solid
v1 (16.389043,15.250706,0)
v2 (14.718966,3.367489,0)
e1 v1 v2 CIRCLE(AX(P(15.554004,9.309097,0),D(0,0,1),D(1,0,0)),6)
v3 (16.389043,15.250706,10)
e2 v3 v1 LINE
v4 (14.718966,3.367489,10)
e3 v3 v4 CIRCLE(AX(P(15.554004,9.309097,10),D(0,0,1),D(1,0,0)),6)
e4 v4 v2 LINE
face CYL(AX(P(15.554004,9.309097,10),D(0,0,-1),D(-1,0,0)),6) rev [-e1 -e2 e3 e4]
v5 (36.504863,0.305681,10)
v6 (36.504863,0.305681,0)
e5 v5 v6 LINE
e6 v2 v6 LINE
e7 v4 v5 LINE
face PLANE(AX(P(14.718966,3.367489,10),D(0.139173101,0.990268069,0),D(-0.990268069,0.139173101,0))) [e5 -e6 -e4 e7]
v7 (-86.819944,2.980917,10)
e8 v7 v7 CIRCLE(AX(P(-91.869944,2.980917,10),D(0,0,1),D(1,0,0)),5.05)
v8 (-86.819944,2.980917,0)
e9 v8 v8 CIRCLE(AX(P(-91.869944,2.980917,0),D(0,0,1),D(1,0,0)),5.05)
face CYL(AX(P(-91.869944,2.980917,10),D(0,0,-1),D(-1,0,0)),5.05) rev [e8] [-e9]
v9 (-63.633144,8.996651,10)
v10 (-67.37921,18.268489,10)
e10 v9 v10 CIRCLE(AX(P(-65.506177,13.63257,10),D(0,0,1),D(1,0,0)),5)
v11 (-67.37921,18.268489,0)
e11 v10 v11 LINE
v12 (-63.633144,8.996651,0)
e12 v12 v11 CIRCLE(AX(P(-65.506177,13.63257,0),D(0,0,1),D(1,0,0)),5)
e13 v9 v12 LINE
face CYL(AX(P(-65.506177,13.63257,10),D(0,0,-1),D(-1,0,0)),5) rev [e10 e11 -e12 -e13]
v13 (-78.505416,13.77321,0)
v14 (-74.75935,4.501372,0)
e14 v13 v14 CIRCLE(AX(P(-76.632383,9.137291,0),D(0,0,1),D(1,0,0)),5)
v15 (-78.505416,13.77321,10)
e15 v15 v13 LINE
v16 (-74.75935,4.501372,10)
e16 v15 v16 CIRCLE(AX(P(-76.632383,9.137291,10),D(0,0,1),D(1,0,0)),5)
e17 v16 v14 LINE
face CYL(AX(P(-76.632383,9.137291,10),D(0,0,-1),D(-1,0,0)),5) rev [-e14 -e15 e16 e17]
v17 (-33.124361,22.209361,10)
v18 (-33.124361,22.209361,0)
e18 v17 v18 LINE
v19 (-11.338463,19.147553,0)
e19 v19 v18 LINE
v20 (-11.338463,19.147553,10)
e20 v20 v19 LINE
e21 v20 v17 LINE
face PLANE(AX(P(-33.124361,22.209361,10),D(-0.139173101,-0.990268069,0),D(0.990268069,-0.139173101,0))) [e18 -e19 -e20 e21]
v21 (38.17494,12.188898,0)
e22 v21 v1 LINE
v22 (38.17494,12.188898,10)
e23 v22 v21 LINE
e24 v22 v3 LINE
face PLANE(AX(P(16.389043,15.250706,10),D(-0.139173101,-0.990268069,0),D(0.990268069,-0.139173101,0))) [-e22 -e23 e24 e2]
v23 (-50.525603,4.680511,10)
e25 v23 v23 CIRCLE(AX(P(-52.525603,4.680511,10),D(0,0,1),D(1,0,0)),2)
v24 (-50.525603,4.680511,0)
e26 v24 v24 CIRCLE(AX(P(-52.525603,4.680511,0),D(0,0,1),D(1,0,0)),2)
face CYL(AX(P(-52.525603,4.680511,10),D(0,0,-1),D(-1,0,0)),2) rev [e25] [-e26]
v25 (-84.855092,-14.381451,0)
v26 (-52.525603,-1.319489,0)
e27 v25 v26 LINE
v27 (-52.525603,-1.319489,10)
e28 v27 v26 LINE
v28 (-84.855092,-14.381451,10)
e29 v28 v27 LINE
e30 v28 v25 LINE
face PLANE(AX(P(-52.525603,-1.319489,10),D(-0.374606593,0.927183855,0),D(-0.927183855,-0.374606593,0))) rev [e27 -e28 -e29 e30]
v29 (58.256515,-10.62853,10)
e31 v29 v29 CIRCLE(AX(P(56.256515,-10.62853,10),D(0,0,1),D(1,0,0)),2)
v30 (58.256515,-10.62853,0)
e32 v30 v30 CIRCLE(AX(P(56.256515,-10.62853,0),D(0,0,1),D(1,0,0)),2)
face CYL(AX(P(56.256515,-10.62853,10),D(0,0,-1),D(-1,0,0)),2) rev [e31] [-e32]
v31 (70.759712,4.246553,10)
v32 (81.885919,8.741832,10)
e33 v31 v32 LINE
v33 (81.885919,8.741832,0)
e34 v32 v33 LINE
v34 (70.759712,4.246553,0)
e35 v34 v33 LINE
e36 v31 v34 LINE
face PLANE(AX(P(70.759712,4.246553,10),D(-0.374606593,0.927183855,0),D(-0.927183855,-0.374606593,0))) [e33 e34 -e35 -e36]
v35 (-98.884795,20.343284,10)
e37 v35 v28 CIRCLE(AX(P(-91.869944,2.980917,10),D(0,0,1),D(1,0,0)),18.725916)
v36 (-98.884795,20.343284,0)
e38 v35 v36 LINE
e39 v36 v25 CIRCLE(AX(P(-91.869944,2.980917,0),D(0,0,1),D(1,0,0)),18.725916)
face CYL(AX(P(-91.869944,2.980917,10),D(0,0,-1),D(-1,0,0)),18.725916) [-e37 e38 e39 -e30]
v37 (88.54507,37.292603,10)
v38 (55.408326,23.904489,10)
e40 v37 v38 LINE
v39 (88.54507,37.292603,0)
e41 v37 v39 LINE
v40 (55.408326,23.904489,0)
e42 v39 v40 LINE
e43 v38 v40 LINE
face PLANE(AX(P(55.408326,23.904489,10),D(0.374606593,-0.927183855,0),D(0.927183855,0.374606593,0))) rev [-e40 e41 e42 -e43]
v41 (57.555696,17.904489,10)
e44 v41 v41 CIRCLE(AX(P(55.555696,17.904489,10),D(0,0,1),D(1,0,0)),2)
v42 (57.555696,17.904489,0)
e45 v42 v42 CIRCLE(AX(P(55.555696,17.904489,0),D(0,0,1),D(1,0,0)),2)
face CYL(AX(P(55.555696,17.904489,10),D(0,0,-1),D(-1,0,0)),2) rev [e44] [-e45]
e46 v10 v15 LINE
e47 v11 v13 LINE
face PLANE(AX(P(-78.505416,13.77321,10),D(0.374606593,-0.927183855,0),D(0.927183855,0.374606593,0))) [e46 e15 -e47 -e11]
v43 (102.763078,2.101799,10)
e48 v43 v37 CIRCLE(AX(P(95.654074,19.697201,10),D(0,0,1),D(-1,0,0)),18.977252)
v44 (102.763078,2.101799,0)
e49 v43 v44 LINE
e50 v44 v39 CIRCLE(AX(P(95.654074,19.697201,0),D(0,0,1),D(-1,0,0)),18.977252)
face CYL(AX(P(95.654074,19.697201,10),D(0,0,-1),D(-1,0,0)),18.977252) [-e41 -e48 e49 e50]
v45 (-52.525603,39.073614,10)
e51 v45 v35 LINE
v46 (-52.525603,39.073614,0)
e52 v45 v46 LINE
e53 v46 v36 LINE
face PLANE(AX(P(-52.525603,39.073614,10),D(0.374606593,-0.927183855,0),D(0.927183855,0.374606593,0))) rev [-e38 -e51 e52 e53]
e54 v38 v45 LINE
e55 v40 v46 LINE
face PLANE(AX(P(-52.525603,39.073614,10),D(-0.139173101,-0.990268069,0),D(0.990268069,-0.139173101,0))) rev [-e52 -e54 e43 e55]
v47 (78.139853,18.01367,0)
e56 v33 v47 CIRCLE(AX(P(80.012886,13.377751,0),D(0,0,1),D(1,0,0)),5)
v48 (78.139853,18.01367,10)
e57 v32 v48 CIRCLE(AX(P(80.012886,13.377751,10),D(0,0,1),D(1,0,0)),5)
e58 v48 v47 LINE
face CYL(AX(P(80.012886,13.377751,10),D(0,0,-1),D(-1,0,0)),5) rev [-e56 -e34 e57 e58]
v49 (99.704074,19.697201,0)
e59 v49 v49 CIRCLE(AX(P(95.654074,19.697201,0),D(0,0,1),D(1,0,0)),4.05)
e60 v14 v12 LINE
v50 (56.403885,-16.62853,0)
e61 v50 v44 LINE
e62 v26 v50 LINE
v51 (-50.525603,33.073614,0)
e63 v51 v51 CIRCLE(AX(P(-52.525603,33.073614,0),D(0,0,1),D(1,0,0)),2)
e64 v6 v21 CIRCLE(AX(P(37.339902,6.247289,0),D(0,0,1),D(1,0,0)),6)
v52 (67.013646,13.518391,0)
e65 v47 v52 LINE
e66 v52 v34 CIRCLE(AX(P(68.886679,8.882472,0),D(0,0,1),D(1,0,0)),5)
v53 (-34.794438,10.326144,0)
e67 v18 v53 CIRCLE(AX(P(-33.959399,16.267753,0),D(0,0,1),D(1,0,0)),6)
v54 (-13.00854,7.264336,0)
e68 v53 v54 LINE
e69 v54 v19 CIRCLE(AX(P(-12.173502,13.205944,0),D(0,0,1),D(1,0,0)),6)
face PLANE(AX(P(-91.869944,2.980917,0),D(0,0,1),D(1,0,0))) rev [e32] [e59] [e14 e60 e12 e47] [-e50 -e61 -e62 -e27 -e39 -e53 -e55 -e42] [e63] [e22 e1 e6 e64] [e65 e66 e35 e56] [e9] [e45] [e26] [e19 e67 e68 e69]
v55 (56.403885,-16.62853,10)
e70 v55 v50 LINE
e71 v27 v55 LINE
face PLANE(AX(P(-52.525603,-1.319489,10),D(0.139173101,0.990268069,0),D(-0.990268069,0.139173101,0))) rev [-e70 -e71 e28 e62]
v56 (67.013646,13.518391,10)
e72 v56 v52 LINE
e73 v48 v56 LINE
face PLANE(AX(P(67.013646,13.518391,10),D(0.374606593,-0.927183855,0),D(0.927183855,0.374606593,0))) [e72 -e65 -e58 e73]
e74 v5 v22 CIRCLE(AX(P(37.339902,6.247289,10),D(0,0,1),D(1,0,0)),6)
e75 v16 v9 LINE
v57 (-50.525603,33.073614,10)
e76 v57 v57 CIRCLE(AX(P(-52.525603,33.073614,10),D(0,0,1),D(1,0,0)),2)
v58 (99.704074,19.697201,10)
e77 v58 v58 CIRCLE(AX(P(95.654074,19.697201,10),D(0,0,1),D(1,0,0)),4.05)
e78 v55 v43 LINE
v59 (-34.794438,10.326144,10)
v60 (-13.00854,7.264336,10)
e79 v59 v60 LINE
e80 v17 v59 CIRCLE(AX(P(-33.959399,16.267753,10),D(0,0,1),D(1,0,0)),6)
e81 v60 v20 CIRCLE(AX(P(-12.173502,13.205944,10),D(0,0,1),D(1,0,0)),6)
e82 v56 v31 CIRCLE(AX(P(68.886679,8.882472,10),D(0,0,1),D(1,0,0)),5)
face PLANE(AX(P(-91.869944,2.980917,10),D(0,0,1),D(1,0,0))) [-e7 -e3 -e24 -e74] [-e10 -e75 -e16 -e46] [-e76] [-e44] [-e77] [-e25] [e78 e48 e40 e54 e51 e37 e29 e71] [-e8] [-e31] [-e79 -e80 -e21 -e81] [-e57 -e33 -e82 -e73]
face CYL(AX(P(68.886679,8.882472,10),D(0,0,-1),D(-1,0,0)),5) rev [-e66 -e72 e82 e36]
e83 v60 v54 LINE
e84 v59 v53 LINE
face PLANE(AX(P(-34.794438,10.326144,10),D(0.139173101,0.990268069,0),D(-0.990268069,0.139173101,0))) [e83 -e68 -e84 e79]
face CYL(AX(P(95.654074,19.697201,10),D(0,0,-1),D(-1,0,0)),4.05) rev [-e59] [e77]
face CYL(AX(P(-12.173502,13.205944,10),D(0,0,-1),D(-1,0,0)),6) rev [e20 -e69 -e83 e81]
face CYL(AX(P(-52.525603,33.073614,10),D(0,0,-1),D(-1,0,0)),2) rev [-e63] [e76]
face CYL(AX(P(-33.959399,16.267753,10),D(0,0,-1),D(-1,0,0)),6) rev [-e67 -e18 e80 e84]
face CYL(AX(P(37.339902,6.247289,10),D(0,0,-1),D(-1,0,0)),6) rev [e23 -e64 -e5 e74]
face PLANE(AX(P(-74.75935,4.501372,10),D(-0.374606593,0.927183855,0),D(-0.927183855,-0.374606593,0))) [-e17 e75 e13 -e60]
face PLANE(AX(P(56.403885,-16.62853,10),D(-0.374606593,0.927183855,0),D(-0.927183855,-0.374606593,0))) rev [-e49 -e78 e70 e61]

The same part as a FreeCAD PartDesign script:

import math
import FreeCAD as App
import Part
import Sketcher
from FreeCAD import Vector
Q = App.Units.Quantity

doc = App.newDocument("Part")
body = doc.addObject("PartDesign::Body", "Body")

sketch1 = body.newObject("Sketcher::SketchObject", "Sketch")
sketch1.AttachmentSupport = (doc.getObject("XY_Plane"), [""])
sketch1.MapMode = "FlatFace"
sketch1.addGeometry([
    Part.LineSegment(Vector(55.4, 23.9, 0), Vector(-52.5, 39.1, 0)),
    Part.LineSegment(Vector(-52.5, 39.1, 0), Vector(-98.9, 20.3, 0)),
    Part.ArcOfCircle(Part.Circle(Vector(-91.9, 3, 0), Vector(0, 0, 1), 18.7), math.radians(112), math.radians(292)),
    Part.LineSegment(Vector(-84.9, -14.4, 0), Vector(-52.5, -1.3, 0)),
    Part.LineSegment(Vector(-52.5, -1.3, 0), Vector(56.4, -16.6, 0)),
    Part.LineSegment(Vector(56.4, -16.6, 0), Vector(102.8, 2.1, 0)),
    Part.ArcOfCircle(Part.Circle(Vector(95.7, 19.7, 0), Vector(0, 0, 1), 19), math.radians(-68), math.radians(112)),
    Part.LineSegment(Vector(88.5, 37.3, 0), Vector(55.4, 23.9, 0)),
    Part.Circle(Vector(56.3, -10.6, 0), Vector(0, 0, 1), 2),
    Part.LineSegment(Vector(67, 13.5, 0), Vector(78.1, 18, 0)),
    Part.ArcOfCircle(Part.Circle(Vector(80, 13.4, 0), Vector(0, 0, 1), 5), math.radians(-68), math.radians(112)),
    Part.LineSegment(Vector(81.9, 8.7, 0), Vector(70.8, 4.2, 0)),
    Part.ArcOfCircle(Part.Circle(Vector(68.9, 8.9, 0), Vector(0, 0, 1), 5), math.radians(112), math.radians(292)),
    Part.LineSegment(Vector(16.4, 15.3, 0), Vector(38.2, 12.2, 0)),
    Part.ArcOfCircle(Part.Circle(Vector(37.3, 6.2, 0), Vector(0, 0, 1), 6), math.radians(-98), math.radians(82)),
    Part.LineSegment(Vector(36.5, 0.3, 0), Vector(14.7, 3.4, 0)),
    Part.ArcOfCircle(Part.Circle(Vector(15.6, 9.3, 0), Vector(0, 0, 1), 6), math.radians(82), math.radians(262)),
    Part.Circle(Vector(-52.5, 4.7, 0), Vector(0, 0, 1), 2),
    Part.Circle(Vector(-91.9, 3, 0), Vector(0, 0, 1), 5),
    Part.Circle(Vector(95.7, 19.7, 0), Vector(0, 0, 1), 4),
    Part.Circle(Vector(55.6, 17.9, 0), Vector(0, 0, 1), 2),
    Part.LineSegment(Vector(-33.1, 22.2, 0), Vector(-11.3, 19.1, 0)),
    Part.ArcOfCircle(Part.Circle(Vector(-12.2, 13.2, 0), Vector(0, 0, 1), 6), math.radians(-98), math.radians(82)),
    Part.LineSegment(Vector(-13, 7.3, 0), Vector(-34.8, 10.3, 0)),
    Part.ArcOfCircle(Part.Circle(Vector(-34, 16.3, 0), Vector(0, 0, 1), 6), math.radians(82), math.radians(262)),
    Part.LineSegment(Vector(-78.5, 13.8, 0), Vector(-67.4, 18.3, 0)),
    Part.ArcOfCircle(Part.Circle(Vector(-65.5, 13.6, 0), Vector(0, 0, 1), 5), math.radians(-68), math.radians(112)),
    Part.LineSegment(Vector(-63.6, 9, 0), Vector(-74.8, 4.5, 0)),
    Part.ArcOfCircle(Part.Circle(Vector(-76.6, 9.1, 0), Vector(0, 0, 1), 5), math.radians(112), math.radians(292)),
    Part.Circle(Vector(-52.5, 33.1, 0), Vector(0, 0, 1), 2),
], False)
sketch1.addConstraint([
    Sketcher.Constraint("Coincident", 0, 2, 1, 1),
    Sketcher.Constraint("Tangent", 1, 2, 2, 1),
    Sketcher.Constraint("Tangent", 2, 2, 3, 1),
    Sketcher.Constraint("Coincident", 3, 2, 4, 1),
    Sketcher.Constraint("Coincident", 4, 2, 5, 1),
    Sketcher.Constraint("Tangent", 5, 2, 6, 1),
    Sketcher.Constraint("Tangent", 6, 2, 7, 1),
    Sketcher.Constraint("Coincident", 7, 2, 0, 1),
    Sketcher.Constraint("Tangent", 9, 2, 10, 2),
    Sketcher.Constraint("Tangent", 10, 1, 11, 1),
    Sketcher.Constraint("Tangent", 11, 2, 12, 2),
    Sketcher.Constraint("Tangent", 12, 1, 9, 1),
    Sketcher.Constraint("Tangent", 13, 2, 14, 2),
    Sketcher.Constraint("Tangent", 14, 1, 15, 1),
    Sketcher.Constraint("Tangent", 15, 2, 16, 2),
    Sketcher.Constraint("Tangent", 16, 1, 13, 1),
    Sketcher.Constraint("Tangent", 21, 2, 22, 2),
    Sketcher.Constraint("Tangent", 22, 1, 23, 1),
    Sketcher.Constraint("Tangent", 23, 2, 24, 2),
    Sketcher.Constraint("Tangent", 24, 1, 21, 1),
    Sketcher.Constraint("Tangent", 25, 2, 26, 2),
    Sketcher.Constraint("Tangent", 26, 1, 27, 1),
    Sketcher.Constraint("Tangent", 27, 2, 28, 2),
    Sketcher.Constraint("Tangent", 28, 1, 25, 1),
    Sketcher.Constraint("Coincident", 18, 3, 2, 3),
    Sketcher.Constraint("Coincident", 19, 3, 6, 3),
    Sketcher.Constraint("Equal", 10, 12),
    Sketcher.Constraint("Equal", 14, 16),
    Sketcher.Constraint("Equal", 8, 17),
    Sketcher.Constraint("Equal", 17, 20),
    Sketcher.Constraint("Equal", 16, 22),
    Sketcher.Constraint("Equal", 22, 24),
    Sketcher.Constraint("Equal", 12, 26),
    Sketcher.Constraint("Equal", 26, 28),
    Sketcher.Constraint("Equal", 20, 29),
    Sketcher.Constraint("Parallel", 1, 3),
    Sketcher.Constraint("Parallel", 0, 4),
    Sketcher.Constraint("Parallel", 3, 5),
    Sketcher.Constraint("Parallel", 5, 7),
    Sketcher.Constraint("Parallel", 7, 9),
    Sketcher.Constraint("Parallel", 4, 13),
    Sketcher.Constraint("Parallel", 15, 21),
    Sketcher.Constraint("Parallel", 11, 25),
    Sketcher.Constraint("Vertical", 17, 3, 29, 3),
    Sketcher.Constraint("Vertical", 29, 3, 0, 2),
    Sketcher.Constraint("Vertical", 0, 2, 3, 2),
    Sketcher.Constraint("Equal", 1, 5),
    Sketcher.Constraint("Equal", 15, 21),
    Sketcher.Constraint("Equal", 11, 25),
    Sketcher.Constraint("Diameter", 8, Q("4 mm")),
    Sketcher.Constraint("Radius", 10, Q("5 mm")),
    Sketcher.Constraint("Radius", 14, Q("6 mm")),
    Sketcher.Constraint("Diameter", 18, Q("10.1 mm")),
    Sketcher.Constraint("Diameter", 19, Q("8.1 mm")),
    Sketcher.Constraint("Angle", 0, Q("172 deg")),
    Sketcher.Constraint("Angle", 1, Q("-158 deg")),
    Sketcher.Constraint("Distance", 1, Q("50 mm")),
    Sketcher.Constraint("Distance", 4, Q("110 mm")),
    Sketcher.Constraint("Distance", 9, Q("12 mm")),
    Sketcher.Constraint("Distance", 13, Q("22 mm")),
    Sketcher.Constraint("DistanceY", 29, 3, 0, 2, Q("6 mm")),
    Sketcher.Constraint("DistanceY", 3, 2, 17, 3, Q("6 mm")),
    Sketcher.Constraint("DistanceY", 4, 2, 8, 3, Q("6 mm")),
    Sketcher.Constraint("DistanceY", 20, 3, 7, 2, Q("6 mm")),
    Sketcher.Constraint("Radius", 2, Q("18.725916 mm")),
    Sketcher.Constraint("Radius", 6, Q("18.977252 mm")),
    Sketcher.Constraint("DistanceX", 4, 2, 10, 3, Q("23.609001 mm")),
    Sketcher.Constraint("DistanceY", -1, 1, 6, 3, Q("19.697201 mm")),
    Sketcher.Constraint("DistanceX", -1, 1, 14, 3, Q("37.339902 mm")),
    Sketcher.Constraint("DistanceX", 22, 3, -1, 1, Q("12.173502 mm")),
    Sketcher.Constraint("DistanceY", 14, 3, 20, 3, Q("11.6572 mm")),
    Sketcher.Constraint("DistanceX", 17, 3, 22, 3, Q("40.352101 mm")),
    Sketcher.Constraint("DistanceY", 12, 1, 20, 3, Q("4.386098 mm")),
    Sketcher.Constraint("DistanceY", -1, 1, 26, 3, Q("13.63257 mm")),
    Sketcher.Constraint("DistanceY", -1, 1, 24, 1, Q("22.209361 mm")),
    Sketcher.Constraint("DistanceX", 25, 2, -1, 1, Q("67.37921 mm")),
    Sketcher.Constraint("DistanceX", 8, 3, 6, 3, Q("39.397559 mm")),
    Sketcher.Constraint("DistanceX", 20, 3, 10, 3, Q("24.45719 mm")),
])
pad1 = body.newObject("PartDesign::Pad", "Pad")
pad1.Profile = sketch1
pad1.Length = 10

doc.recompute()
